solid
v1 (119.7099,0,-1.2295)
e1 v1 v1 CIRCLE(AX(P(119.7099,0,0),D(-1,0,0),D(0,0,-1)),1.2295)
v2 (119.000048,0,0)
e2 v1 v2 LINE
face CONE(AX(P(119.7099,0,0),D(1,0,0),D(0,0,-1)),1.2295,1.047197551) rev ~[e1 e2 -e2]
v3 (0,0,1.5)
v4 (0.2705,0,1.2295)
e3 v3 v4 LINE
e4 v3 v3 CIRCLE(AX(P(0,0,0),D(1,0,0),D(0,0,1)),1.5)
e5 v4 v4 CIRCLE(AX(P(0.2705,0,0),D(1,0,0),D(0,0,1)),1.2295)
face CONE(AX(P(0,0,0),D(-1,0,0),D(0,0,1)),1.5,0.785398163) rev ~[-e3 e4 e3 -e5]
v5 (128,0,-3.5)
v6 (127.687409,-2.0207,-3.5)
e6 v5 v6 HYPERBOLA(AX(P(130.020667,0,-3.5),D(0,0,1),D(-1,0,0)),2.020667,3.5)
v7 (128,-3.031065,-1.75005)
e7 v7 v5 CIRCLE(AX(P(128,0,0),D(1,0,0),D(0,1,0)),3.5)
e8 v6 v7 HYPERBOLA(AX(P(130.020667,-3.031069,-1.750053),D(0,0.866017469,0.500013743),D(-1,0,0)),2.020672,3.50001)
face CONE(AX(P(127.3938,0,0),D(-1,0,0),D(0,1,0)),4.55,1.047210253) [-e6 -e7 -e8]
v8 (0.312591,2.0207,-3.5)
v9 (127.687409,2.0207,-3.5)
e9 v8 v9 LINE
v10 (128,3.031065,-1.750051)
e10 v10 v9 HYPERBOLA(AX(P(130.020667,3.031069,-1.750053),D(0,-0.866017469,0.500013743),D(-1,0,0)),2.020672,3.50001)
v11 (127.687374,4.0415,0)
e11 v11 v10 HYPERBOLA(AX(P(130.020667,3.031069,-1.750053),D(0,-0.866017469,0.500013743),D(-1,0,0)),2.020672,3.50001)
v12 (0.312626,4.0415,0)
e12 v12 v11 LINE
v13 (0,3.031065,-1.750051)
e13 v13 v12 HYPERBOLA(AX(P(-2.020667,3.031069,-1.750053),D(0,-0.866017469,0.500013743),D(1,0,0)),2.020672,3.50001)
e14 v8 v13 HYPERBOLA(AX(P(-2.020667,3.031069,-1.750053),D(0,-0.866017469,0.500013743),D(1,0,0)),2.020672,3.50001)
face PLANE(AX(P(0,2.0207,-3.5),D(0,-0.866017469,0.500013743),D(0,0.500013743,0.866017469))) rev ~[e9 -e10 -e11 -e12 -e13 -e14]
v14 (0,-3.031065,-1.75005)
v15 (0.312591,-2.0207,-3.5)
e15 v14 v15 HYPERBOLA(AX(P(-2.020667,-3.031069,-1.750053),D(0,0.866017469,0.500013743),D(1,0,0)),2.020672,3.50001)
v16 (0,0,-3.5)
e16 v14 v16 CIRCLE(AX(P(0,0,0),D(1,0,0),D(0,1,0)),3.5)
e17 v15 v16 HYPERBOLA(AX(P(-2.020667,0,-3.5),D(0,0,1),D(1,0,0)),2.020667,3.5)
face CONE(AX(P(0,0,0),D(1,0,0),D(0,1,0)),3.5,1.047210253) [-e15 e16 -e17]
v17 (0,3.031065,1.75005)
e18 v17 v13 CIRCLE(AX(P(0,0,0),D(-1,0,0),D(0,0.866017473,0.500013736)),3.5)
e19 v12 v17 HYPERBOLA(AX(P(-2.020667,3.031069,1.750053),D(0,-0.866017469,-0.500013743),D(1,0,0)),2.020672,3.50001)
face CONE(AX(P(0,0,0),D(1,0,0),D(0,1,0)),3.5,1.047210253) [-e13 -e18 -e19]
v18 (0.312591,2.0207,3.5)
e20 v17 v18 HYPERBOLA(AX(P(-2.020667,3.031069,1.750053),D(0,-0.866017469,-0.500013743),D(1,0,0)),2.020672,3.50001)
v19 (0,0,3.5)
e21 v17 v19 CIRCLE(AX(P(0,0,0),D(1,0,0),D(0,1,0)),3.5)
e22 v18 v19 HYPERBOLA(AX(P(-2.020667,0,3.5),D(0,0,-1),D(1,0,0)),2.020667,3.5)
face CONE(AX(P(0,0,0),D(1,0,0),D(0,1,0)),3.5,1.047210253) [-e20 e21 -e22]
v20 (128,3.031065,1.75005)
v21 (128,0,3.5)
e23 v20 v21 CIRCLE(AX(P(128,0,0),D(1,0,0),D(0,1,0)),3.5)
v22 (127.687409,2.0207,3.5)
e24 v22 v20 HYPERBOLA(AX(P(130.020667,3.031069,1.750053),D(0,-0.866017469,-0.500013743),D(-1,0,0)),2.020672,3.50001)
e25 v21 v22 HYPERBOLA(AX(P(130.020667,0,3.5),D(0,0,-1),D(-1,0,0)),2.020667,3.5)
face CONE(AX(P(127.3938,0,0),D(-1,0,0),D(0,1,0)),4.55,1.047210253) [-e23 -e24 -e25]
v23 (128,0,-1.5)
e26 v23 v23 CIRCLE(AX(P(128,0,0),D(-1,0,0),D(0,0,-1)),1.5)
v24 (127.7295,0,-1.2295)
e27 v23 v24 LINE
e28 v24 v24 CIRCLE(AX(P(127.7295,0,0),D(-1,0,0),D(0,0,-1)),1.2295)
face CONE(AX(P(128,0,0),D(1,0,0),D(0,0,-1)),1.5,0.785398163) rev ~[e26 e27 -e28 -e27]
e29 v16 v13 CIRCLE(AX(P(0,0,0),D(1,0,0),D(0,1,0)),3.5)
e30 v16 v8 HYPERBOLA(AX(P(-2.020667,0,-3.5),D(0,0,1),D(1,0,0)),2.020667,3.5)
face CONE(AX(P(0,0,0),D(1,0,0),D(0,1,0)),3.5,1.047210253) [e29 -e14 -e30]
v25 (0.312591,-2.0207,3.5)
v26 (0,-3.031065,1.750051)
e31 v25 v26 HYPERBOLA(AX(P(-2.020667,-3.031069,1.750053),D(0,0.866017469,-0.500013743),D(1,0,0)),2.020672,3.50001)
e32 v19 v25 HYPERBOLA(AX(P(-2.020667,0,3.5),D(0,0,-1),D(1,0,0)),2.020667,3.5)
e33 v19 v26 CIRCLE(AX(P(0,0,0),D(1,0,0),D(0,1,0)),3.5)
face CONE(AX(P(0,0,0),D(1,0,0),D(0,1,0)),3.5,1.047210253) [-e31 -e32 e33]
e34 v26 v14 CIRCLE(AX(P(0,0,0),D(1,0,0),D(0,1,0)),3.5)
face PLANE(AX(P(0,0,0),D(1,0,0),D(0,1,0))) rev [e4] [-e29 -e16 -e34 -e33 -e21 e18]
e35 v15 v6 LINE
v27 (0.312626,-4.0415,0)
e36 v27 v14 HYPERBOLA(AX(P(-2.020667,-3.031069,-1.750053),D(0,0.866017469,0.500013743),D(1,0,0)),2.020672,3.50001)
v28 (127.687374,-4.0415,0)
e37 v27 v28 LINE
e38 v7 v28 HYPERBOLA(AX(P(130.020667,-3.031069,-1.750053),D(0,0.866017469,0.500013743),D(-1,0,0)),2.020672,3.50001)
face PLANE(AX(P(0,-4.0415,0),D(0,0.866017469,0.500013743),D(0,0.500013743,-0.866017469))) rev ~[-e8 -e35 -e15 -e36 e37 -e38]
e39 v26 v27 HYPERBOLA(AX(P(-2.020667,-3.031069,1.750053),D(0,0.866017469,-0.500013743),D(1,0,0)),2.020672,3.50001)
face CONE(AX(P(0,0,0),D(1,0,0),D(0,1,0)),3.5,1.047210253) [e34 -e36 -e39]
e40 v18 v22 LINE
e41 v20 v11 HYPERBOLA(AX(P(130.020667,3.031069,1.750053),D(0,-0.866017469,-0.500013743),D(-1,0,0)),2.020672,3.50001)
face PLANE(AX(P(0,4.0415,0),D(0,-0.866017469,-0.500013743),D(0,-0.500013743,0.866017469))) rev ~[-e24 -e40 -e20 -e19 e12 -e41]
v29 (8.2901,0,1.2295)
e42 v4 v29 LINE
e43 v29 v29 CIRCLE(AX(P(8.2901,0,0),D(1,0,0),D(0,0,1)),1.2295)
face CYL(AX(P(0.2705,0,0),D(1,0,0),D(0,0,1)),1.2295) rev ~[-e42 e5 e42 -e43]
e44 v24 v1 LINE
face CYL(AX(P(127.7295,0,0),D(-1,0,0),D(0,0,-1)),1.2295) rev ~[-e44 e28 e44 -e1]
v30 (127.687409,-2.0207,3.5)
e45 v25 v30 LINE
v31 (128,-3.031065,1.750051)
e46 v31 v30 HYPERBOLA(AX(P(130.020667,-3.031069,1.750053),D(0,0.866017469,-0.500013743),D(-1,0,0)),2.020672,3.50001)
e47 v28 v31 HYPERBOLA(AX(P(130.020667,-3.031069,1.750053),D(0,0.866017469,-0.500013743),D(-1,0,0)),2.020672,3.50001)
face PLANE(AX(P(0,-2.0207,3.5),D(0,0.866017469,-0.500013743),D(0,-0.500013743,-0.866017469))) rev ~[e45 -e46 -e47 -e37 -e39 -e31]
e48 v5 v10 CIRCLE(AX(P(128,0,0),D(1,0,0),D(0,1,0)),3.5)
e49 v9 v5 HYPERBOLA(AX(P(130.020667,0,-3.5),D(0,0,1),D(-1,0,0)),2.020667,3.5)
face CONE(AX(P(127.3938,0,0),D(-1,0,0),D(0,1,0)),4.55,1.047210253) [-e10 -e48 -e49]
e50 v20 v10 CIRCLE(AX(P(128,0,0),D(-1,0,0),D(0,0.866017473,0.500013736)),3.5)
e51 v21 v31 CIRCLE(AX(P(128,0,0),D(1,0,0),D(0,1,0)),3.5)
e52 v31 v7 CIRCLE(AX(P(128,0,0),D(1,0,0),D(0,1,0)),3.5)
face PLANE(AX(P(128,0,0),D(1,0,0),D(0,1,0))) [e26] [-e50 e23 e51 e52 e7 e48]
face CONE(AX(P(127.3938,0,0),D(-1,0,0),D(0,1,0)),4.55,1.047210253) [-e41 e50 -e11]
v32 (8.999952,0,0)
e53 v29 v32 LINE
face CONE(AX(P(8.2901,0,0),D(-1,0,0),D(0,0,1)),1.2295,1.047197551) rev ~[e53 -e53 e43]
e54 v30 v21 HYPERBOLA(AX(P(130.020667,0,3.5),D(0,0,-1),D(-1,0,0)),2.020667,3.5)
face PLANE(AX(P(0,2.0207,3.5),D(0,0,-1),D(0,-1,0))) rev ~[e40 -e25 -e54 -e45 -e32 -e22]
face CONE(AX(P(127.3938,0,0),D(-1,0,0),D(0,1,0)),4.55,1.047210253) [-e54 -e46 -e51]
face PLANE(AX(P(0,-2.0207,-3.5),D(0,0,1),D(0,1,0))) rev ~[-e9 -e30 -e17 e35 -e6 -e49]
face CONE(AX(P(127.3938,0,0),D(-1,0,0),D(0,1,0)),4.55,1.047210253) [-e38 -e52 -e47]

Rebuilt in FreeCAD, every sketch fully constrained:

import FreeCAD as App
import Part
import Sketcher
Q = App.Units.Quantity

doc = App.newDocument("Part")
body = doc.addObject("PartDesign::Body", "Body")

# Sketch on XY plane
sketch1 = body.newObject("Sketcher::SketchObject", "Sketch")
sketch1.AttachmentSupport = (doc.getObject("XY_Plane"), [""])
sketch1.MapMode = "FlatFace"
sketch1.addGeometry([
    Part.LineSegment(App.Vector(0, 0, 0), App.Vector(128, 0, 0)),  # 0
    Part.LineSegment(App.Vector(128, 0, 0), App.Vector(128, 3.5, 0)),  # 1
    Part.LineSegment(App.Vector(128, 3.5, 0), App.Vector(127.3938, 4.55, 0)),  # 2
    Part.LineSegment(App.Vector(127.3938, 4.55, 0), App.Vector(0.6062, 4.55, 0)),  # 3
    Part.LineSegment(App.Vector(0.6062, 4.55, 0), App.Vector(0, 3.5, 0)),  # 4
    Part.LineSegment(App.Vector(0, 3.5, 0), App.Vector(0, 0, 0)),  # 5
], False)
sketch1.addConstraint([
    Sketcher.Constraint("Coincident", 0, 2, 1, 1),
    Sketcher.Constraint("Coincident", 1, 2, 2, 1),
    Sketcher.Constraint("Coincident", 2, 2, 3, 1),
    Sketcher.Constraint("Coincident", 3, 2, 4, 1),
    Sketcher.Constraint("Coincident", 4, 2, 5, 1),
    Sketcher.Constraint("Coincident", 5, 2, 0, 1),
    Sketcher.Constraint("Horizontal", 0),
    Sketcher.Constraint("Vertical", 1),
    Sketcher.Constraint("Horizontal", 3),
    Sketcher.Constraint("Vertical", 5),
    Sketcher.Constraint("Coincident", 5, 2, -1, 1),
    Sketcher.Constraint("Horizontal", 1, 2, 4, 2),
    Sketcher.Constraint("Equal", 2, 4),
    Sketcher.Constraint("DistanceX", 0, 1, 0, 2, 128.0),
    Sketcher.Constraint("Angle", 2, Q("119.9993 deg")),
    Sketcher.Constraint("DistanceY", 1, 1, 1, 2, 3.5),
    Sketcher.Constraint("DistanceY", -1, 1, 2, 2, 4.55),
])
revolution = body.newObject("PartDesign::Revolution", "Revolution")
revolution.Profile = sketch1
revolution.ReferenceAxis = (sketch1, ["H_Axis"])
revolution.Angle = 360

# Sketch on YZ plane
sketch2 = body.newObject("Sketcher::SketchObject", "Sketch001")
sketch2.AttachmentSupport = (doc.getObject("YZ_Plane"), [""])
sketch2.MapMode = "FlatFace"
sketch2.addGeometry([
    Part.LineSegment(App.Vector(7, -7, 0), App.Vector(7, 7, 0)),  # 0
    Part.LineSegment(App.Vector(7, 7, 0), App.Vector(-7, 7, 0)),  # 1
    Part.LineSegment(App.Vector(-7, 7, 0), App.Vector(-7, -7, 0)),  # 2
    Part.LineSegment(App.Vector(-7, -7, 0), App.Vector(7, -7, 0)),  # 3
    Part.LineSegment(App.Vector(-4.0415, 0, 0), App.Vector(-2.0207, 3.5, 0)),  # 4
    Part.LineSegment(App.Vector(-2.0207, 3.5, 0), App.Vector(2.0207, 3.5, 0)),  # 5
    Part.LineSegment(App.Vector(2.0207, 3.5, 0), App.Vector(4.0415, 0, 0)),  # 6
    Part.LineSegment(App.Vector(4.0415, 0, 0), App.Vector(2.0207, -3.5, 0)),  # 7
    Part.LineSegment(App.Vector(2.0207, -3.5, 0), App.Vector(-2.0207, -3.5, 0)),  # 8
    Part.LineSegment(App.Vector(-2.0207, -3.5, 0), App.Vector(-4.0415, 0, 0)),  # 9
], False)
sketch2.addConstraint([
    Sketcher.Constraint("Coincident", 0, 2, 1, 1),
    Sketcher.Constraint("Coincident", 1, 2, 2, 1),
    Sketcher.Constraint("Coincident", 2, 2, 3, 1),
    Sketcher.Constraint("Coincident", 3, 2, 0, 1),
    Sketcher.Constraint("Coincident", 4, 2, 5, 1),
    Sketcher.Constraint("Coincident", 5, 2, 6, 1),
    Sketcher.Constraint("Coincident", 6, 2, 7, 1),
    Sketcher.Constraint("Coincident", 7, 2, 8, 1),
    Sketcher.Constraint("Coincident", 8, 2, 9, 1),
    Sketcher.Constraint("Coincident", 9, 2, 4, 1),
    Sketcher.Constraint("Vertical", 0),
    Sketcher.Constraint("Horizontal", 1),
    Sketcher.Constraint("Vertical", 2),
    Sketcher.Constraint("Horizontal", 3),
    Sketcher.Constraint("Horizontal", 5),
    Sketcher.Constraint("Horizontal", 8),
    Sketcher.Constraint("Symmetric", 0, 2, 2, 2, -1, 1),
    Sketcher.Constraint("Symmetric", 4, 2, 7, 2, -1, 1),
    Sketcher.Constraint("Symmetric", 6, 2, 9, 2, -1, 1),
    Sketcher.Constraint("PointOnObject", 6, 2, -1),
    Sketcher.Constraint("Parallel", 6, 9),
    Sketcher.Constraint("Vertical", 5, 2, 7, 2),
    Sketcher.Constraint("Equal", 3, 0),
    Sketcher.Constraint("DistanceX", 1, 2, 1, 1, 14.0),
    Sketcher.Constraint("Angle", 4, Q("59.999 deg")),
    Sketcher.Constraint("DistanceY", 7, 2, 5, 2, 7.0),
    Sketcher.Constraint("DistanceX", 5, 1, 5, 2, 4.0414),
])
pocket1 = body.newObject("PartDesign::Pocket", "Pocket")
pocket1.Profile = sketch2
pocket1.Length = 128
pocket1.Reversed = True

# Sketch on YZ plane
sketch3 = body.newObject("Sketcher::SketchObject", "Sketch002")
sketch3.AttachmentSupport = (doc.getObject("YZ_Plane"), [""])
sketch3.MapMode = "FlatFace"
sketch3.addGeometry(Part.Circle(App.Vector(0, 0, 0), App.Vector(0, 0, 1), 1.2295), False)
sketch3.addConstraint([
    Sketcher.Constraint("Coincident", 0, 3, -1, 1),
    Sketcher.Constraint("Diameter", 0, 2.459),
])
doc.recompute()
hole = body.newObject("PartDesign::Hole", "Hole")
hole.Profile = sketch3
hole.ThreadType = "None"
hole.Diameter = 2.459
hole.DepthType = "Dimension"
hole.Depth = 8.2901
hole.DrillPoint = "Angled"
hole.DrillPointAngle = 120
hole.HoleCutType = "Countersink"
hole.HoleCutDiameter = 3
hole.HoleCutCountersinkAngle = 90
hole.Reversed = True

# Sketch on YZ plane
sketch4 = body.newObject("Sketcher::SketchObject", "Sketch003")
sketch4.AttachmentSupport = (doc.getObject("YZ_Plane"), [""])
sketch4.MapMode = "FlatFace"
sketch4.AttachmentOffset = App.Placement(App.Vector(0, 0, 128), App.Rotation())
sketch4.addGeometry(Part.Circle(App.Vector(0, 0, 0), App.Vector(0, 0, 1), 1.2295), False)
sketch4.addConstraint([
    Sketcher.Constraint("Coincident", 0, 3, -1, 1),
    Sketcher.Constraint("Diameter", 0, 2.459),
])
doc.recompute()
hole2 = body.newObject("PartDesign::Hole", "Hole001")
hole2.Profile = sketch4
hole2.ThreadType = "None"
hole2.Diameter = 2.459
hole2.DepthType = "Dimension"
hole2.Depth = 8.2901
hole2.DrillPoint = "Angled"
hole2.DrillPointAngle = 120
hole2.HoleCutType = "Countersink"
hole2.HoleCutDiameter = 3
hole2.HoleCutCountersinkAngle = 90

doc.recompute()
